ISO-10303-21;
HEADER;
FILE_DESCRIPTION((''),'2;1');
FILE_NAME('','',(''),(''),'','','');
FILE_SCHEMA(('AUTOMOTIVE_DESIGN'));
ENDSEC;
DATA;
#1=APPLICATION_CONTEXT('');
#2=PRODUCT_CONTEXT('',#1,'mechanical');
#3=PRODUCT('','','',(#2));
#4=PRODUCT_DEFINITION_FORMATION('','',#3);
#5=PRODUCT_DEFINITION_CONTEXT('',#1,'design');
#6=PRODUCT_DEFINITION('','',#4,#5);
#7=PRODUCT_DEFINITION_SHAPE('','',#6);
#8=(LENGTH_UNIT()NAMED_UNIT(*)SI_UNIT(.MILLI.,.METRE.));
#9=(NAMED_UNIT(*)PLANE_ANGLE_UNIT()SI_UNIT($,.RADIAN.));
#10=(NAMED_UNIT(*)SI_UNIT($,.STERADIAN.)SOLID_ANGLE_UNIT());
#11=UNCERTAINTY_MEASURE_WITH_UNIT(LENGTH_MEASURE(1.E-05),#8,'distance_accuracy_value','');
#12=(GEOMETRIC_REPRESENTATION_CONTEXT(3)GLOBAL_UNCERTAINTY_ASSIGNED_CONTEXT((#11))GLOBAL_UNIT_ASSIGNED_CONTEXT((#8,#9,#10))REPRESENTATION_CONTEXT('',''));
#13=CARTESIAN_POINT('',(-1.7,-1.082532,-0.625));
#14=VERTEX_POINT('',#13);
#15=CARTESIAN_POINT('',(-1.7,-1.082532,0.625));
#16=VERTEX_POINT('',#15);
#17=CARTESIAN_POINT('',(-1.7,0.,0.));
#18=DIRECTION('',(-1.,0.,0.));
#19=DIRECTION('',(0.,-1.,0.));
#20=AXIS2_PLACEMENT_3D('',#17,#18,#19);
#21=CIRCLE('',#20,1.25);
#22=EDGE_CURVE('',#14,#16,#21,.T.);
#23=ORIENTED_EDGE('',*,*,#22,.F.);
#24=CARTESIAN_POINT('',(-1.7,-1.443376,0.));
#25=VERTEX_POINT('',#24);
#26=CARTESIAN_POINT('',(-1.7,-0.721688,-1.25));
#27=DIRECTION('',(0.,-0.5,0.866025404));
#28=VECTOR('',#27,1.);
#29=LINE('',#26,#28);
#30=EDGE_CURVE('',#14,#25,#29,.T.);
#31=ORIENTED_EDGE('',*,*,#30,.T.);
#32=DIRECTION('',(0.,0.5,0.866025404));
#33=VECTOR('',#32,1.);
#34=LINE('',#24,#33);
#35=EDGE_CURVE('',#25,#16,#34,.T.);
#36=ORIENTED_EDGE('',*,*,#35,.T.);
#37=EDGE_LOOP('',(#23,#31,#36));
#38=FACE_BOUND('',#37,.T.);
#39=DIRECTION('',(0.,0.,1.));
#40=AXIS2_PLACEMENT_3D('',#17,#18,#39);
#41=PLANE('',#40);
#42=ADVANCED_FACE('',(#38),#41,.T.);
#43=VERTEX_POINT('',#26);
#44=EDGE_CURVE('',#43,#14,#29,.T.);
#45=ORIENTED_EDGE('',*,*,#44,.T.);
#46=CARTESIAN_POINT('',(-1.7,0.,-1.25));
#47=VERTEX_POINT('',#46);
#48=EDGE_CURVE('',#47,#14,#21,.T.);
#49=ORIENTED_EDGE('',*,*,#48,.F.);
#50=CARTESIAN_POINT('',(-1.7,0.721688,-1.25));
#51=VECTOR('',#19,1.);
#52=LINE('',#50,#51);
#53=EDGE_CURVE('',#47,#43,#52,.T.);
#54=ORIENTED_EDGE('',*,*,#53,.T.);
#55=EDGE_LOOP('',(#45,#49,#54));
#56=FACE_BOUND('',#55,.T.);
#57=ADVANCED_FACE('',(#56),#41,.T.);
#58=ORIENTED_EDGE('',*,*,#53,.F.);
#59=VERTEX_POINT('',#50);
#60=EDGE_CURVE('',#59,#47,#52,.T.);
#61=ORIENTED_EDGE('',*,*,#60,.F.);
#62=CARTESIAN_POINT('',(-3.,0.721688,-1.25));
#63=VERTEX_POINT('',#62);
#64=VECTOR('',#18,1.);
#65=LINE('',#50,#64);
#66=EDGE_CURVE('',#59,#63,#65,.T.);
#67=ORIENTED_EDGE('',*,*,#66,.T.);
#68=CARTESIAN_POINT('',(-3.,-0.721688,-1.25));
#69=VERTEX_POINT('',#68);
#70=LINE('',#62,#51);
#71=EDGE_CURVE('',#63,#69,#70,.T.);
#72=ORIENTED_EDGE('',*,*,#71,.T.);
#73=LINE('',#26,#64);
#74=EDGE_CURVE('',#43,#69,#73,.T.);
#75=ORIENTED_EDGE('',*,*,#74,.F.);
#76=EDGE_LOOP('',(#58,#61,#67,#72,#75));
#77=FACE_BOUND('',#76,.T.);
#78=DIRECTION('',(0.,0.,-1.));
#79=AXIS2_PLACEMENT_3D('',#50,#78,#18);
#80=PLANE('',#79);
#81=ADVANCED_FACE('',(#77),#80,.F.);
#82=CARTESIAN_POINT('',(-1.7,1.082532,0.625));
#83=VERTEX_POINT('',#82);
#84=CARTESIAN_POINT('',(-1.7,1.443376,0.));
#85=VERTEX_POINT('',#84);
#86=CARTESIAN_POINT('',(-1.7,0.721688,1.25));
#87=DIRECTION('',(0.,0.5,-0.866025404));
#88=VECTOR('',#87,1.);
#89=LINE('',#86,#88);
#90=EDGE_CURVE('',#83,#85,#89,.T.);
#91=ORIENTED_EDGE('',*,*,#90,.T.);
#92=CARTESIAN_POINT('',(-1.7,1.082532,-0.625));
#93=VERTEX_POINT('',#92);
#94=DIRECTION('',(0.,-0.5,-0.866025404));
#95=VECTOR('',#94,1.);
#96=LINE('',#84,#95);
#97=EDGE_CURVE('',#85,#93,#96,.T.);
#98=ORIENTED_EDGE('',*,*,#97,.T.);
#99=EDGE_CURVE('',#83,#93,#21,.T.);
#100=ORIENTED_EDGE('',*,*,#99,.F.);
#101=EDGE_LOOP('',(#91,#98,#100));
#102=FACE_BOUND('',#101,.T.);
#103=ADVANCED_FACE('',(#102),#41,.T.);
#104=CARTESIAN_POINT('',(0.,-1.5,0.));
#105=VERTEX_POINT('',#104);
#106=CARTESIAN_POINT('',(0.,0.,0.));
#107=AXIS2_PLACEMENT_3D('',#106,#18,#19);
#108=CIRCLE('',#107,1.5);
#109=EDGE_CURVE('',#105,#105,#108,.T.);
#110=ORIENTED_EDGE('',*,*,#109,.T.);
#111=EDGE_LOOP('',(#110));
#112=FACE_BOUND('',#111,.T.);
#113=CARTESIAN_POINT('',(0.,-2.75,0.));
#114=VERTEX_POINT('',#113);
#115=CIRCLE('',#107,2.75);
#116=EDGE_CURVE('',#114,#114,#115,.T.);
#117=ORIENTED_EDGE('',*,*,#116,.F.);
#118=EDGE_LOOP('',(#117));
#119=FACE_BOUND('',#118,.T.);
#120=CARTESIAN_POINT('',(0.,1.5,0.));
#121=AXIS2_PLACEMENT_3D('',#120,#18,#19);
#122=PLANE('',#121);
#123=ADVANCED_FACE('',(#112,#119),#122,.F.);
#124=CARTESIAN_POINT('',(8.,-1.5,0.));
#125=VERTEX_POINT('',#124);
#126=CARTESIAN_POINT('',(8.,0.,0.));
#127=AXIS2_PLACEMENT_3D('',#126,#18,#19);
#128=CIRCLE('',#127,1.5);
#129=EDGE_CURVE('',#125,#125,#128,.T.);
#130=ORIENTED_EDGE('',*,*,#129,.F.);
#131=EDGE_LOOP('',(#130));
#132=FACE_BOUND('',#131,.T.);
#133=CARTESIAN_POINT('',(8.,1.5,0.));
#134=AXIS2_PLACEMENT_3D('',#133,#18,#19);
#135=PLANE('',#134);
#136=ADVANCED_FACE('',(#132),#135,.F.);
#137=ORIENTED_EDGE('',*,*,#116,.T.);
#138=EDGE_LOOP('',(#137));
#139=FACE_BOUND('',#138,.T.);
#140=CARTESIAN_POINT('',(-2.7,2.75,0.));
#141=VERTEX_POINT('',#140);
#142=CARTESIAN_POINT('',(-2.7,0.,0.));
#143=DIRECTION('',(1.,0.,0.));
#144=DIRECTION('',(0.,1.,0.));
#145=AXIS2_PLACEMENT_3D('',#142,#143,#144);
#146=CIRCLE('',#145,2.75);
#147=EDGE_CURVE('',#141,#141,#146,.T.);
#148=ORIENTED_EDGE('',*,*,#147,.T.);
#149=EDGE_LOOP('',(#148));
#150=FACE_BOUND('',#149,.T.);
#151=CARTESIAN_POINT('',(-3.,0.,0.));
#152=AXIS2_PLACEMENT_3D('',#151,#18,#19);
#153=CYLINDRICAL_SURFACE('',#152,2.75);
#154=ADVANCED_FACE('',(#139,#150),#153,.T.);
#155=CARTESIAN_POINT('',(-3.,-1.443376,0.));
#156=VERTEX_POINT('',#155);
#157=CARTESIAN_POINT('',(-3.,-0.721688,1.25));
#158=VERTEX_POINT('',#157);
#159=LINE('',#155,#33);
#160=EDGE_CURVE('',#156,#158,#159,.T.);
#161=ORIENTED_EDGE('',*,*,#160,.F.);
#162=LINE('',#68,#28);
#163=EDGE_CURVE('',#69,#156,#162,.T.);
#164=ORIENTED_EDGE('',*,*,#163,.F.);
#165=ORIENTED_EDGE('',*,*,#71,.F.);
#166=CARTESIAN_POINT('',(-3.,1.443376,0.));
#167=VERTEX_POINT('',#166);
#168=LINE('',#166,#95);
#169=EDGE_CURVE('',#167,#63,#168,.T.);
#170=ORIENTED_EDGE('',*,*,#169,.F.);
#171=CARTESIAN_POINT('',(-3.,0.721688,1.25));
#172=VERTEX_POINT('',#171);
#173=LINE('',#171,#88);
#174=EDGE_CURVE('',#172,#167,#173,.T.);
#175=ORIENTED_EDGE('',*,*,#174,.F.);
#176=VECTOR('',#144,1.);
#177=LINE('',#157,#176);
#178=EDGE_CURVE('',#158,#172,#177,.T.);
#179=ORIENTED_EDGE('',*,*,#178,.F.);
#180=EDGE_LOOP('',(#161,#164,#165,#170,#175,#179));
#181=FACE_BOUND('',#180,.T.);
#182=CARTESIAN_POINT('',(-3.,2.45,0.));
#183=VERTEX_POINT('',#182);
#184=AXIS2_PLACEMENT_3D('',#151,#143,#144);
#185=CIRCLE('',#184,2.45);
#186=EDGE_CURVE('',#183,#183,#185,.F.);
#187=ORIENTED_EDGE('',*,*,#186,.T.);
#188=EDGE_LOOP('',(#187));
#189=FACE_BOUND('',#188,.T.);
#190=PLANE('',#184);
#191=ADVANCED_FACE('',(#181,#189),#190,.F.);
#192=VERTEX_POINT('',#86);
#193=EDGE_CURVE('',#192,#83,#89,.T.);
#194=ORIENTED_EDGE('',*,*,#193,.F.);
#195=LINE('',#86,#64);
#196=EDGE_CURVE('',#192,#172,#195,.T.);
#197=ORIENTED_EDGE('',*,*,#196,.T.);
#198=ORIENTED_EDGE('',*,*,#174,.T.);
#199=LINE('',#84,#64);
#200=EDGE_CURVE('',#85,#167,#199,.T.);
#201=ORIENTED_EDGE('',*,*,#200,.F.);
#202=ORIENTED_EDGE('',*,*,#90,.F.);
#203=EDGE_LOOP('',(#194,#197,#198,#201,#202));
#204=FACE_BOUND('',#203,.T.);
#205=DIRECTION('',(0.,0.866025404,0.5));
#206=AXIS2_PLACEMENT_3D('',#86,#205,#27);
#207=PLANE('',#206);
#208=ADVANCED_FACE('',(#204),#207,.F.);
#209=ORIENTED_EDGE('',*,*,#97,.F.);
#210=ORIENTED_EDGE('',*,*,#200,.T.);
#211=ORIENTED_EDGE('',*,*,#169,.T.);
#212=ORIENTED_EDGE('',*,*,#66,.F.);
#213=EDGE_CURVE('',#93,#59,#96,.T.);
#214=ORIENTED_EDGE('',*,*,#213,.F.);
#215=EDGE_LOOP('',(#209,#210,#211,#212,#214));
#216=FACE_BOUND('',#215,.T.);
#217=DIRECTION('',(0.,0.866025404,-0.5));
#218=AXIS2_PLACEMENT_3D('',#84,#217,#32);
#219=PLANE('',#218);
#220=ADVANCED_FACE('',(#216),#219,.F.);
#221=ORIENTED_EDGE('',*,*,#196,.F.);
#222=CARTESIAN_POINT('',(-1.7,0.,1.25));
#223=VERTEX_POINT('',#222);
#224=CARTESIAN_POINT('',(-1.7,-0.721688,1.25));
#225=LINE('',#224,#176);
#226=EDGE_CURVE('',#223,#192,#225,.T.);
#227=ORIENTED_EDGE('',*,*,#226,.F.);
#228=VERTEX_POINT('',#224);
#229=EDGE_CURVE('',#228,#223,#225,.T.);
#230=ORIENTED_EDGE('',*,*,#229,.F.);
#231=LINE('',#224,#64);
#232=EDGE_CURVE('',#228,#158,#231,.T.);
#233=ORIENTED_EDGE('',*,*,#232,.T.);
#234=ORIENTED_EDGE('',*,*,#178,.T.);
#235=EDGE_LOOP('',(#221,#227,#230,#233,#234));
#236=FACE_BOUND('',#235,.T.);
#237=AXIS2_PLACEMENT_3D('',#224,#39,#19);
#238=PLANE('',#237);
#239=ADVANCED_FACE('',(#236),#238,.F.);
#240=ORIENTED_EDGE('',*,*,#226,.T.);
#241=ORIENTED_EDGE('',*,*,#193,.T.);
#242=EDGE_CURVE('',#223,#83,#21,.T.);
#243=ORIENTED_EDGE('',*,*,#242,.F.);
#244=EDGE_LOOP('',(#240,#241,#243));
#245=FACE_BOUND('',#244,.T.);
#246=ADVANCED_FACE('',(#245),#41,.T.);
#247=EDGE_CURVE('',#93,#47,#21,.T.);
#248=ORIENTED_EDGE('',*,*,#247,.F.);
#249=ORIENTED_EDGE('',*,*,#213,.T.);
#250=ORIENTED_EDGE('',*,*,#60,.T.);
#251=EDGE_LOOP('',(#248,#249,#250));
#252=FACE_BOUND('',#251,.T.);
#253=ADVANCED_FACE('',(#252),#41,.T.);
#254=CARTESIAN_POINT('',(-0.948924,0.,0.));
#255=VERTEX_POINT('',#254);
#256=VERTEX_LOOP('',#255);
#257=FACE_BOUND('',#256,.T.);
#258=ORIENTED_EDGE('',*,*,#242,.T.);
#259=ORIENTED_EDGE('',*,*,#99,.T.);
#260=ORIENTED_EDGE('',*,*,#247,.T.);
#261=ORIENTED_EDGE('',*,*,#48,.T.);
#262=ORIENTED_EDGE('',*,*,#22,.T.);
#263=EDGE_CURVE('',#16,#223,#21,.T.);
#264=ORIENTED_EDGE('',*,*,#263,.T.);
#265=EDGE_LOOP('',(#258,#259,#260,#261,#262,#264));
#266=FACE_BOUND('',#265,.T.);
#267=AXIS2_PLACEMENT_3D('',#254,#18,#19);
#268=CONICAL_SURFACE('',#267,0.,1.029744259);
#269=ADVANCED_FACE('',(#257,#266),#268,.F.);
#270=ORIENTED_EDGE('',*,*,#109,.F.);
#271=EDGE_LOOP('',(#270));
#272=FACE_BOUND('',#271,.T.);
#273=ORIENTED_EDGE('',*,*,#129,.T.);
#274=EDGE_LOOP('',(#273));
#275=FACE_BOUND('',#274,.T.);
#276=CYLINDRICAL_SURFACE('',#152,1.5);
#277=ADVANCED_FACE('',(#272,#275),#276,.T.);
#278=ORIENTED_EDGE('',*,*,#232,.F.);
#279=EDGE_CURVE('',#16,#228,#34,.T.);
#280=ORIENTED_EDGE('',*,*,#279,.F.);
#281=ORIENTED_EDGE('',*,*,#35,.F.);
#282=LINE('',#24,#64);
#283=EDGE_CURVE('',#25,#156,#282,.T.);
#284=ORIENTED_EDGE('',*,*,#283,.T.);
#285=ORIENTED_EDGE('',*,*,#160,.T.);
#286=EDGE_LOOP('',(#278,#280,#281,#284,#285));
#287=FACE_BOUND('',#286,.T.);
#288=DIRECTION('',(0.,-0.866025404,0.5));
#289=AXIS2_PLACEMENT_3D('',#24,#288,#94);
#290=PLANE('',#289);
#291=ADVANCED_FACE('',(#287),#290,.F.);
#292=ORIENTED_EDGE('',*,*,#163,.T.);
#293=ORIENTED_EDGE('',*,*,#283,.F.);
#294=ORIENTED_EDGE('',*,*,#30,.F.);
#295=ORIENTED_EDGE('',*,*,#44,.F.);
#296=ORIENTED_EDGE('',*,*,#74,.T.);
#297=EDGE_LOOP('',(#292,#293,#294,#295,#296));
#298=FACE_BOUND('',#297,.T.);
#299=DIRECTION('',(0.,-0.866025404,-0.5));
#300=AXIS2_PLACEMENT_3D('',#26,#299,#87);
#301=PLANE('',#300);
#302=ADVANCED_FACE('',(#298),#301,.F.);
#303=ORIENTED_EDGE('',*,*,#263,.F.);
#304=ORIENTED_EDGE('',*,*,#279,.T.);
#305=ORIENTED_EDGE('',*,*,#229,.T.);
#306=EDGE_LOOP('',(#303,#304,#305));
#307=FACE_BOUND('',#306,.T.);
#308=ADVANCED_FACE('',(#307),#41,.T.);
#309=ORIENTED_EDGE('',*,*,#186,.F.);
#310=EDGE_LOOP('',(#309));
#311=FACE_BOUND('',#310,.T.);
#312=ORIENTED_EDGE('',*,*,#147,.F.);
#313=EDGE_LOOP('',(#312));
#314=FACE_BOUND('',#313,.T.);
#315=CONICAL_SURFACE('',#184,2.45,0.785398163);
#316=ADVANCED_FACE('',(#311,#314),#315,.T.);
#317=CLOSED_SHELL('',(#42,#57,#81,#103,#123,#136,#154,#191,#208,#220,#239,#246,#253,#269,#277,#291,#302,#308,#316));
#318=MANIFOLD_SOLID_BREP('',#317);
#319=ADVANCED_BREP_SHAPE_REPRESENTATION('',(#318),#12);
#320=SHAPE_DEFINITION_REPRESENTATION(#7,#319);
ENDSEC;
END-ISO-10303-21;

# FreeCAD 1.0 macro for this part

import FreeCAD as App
import Part
import Sketcher
Q = App.Units.Quantity


def edges_at(feature, points):
    """Names of the edges that pass closest to the given points."""
    edges = feature.Shape.Edges
    near = lambda p: min(range(len(edges)), key=lambda i: edges[i].distToShape(Part.Vertex(*p))[0])
    return sorted({f"Edge{near(p) + 1}" for p in points})


def add_polygon(sketch, points):
    """Adds a closed chain of lines whose ends are joined by coincident constraints."""
    first, n = sketch.GeometryCount, len(points)
    for a, b in zip(points, points[1:] + points[:1]):
        sketch.addGeometry(Part.LineSegment(App.Vector(*a, 0), App.Vector(*b, 0)), False)
    for i in range(n):
        sketch.addConstraint(Sketcher.Constraint("Coincident", first + i, 2, first + (i + 1) % n, 1))

doc = App.newDocument("Part")
body = doc.addObject("PartDesign::Body", "Body")

# Sketch on XY plane
sketch1 = body.newObject("Sketcher::SketchObject", "Sketch")
sketch1.AttachmentSupport = (doc.getObject("XY_Plane"), [""])
sketch1.MapMode = "FlatFace"
add_polygon(sketch1, [(8, 1.5), (0, 1.5), (0, 2.75), (-3, 2.75), (-3, 0), (8, 0)])  # lines 0-5
sketch1.addConstraint([
    Sketcher.Constraint("Horizontal", 0),
    Sketcher.Constraint("Vertical", 1),
    Sketcher.Constraint("Horizontal", 2),
    Sketcher.Constraint("Vertical", 3),
    Sketcher.Constraint("Horizontal", 4),
    Sketcher.Constraint("Vertical", 5),
    Sketcher.Constraint("PointOnObject", 0, 2, -2),
    Sketcher.Constraint("PointOnObject", 3, 2, -1),
    Sketcher.Constraint("DistanceX", 0, 2, 0, 1, Q("8 mm")),
    Sketcher.Constraint("DistanceX", 2, 2, 2, 1, Q("3 mm")),
    Sketcher.Constraint("DistanceY", 5, 1, 5, 2, Q("1.5 mm")),
    Sketcher.Constraint("DistanceY", 1, 1, 1, 2, Q("1.25 mm")),
])
revolution = body.newObject("PartDesign::Revolution", "Revolution")
revolution.Profile = sketch1
revolution.ReferenceAxis = (sketch1, ["H_Axis"])
revolution.Angle = 360

# Sketch on XY plane
sketch2 = body.newObject("Sketcher::SketchObject", "Sketch001")
sketch2.AttachmentSupport = (doc.getObject("XY_Plane"), [""])
sketch2.MapMode = "FlatFace"
add_polygon(sketch2, [(-0.948924, 0), (-1.7, 1.25), (-3, 1.25), (-3, 0)])  # lines 0-3
sketch2.addConstraint([
    Sketcher.Constraint("Horizontal", 1),
    Sketcher.Constraint("Vertical", 2),
    Sketcher.Constraint("Horizontal", 3),
    Sketcher.Constraint("PointOnObject", 2, 2, -1),
    Sketcher.Constraint("Angle", 0, Q("121 deg")),
    Sketcher.Constraint("DistanceX", 1, 2, 1, 1, Q("1.3 mm")),
    Sketcher.Constraint("DistanceX", 1, 2, -1, 1, Q("3 mm")),
    Sketcher.Constraint("DistanceY", 2, 2, 2, 1, Q("1.25 mm")),
])
groove = body.newObject("PartDesign::Groove", "Groove")
groove.Profile = sketch2
groove.ReferenceAxis = (sketch2, ["H_Axis"])
groove.Angle = 360

# Sketch on YZ plane
sketch3 = body.newObject("Sketcher::SketchObject", "Sketch002")
sketch3.AttachmentSupport = (doc.getObject("YZ_Plane"), [""])
sketch3.MapMode = "FlatFace"
sketch3.AttachmentOffset = App.Placement(App.Vector(0, 0, -3), App.Rotation())
add_polygon(sketch3, [(0.721688, 1.25), (1.443376, 0), (0.721688, -1.25), (-0.721688, -1.25), (-1.443376, 0), (-0.721688, 1.25)])  # lines 0-5
sketch3.addConstraint([
    Sketcher.Constraint("Horizontal", 2),
    Sketcher.Constraint("Horizontal", 5),
    Sketcher.Constraint("Symmetric", 0, 2, 3, 2, -1, 1),
    Sketcher.Constraint("Symmetric", 1, 2, 4, 2, -1, 1),
    Sketcher.Constraint("PointOnObject", 0, 2, -1),
    Sketcher.Constraint("Parallel", 0, 3),
    Sketcher.Constraint("Vertical", 2, 2, 4, 2),
    Sketcher.Constraint("Angle", 0, Q("-60 deg")),
    Sketcher.Constraint("DistanceY", 2, 2, 4, 2, Q("2.5 mm")),
    Sketcher.Constraint("DistanceX", 2, 2, 2, 1, Q("1.443376 mm")),
])
pocket1 = body.newObject("PartDesign::Pocket", "Pocket")
pocket1.Profile = sketch3
pocket1.Length = 1.3
pocket1.Reversed = True
doc.recompute()

chamfer = body.newObject("PartDesign::Chamfer", "Chamfer")
chamfer.Base = (pocket1, edges_at(pocket1, [(-3, -2.75, 0)]))
chamfer.Size = 0.3

doc.recompute()
